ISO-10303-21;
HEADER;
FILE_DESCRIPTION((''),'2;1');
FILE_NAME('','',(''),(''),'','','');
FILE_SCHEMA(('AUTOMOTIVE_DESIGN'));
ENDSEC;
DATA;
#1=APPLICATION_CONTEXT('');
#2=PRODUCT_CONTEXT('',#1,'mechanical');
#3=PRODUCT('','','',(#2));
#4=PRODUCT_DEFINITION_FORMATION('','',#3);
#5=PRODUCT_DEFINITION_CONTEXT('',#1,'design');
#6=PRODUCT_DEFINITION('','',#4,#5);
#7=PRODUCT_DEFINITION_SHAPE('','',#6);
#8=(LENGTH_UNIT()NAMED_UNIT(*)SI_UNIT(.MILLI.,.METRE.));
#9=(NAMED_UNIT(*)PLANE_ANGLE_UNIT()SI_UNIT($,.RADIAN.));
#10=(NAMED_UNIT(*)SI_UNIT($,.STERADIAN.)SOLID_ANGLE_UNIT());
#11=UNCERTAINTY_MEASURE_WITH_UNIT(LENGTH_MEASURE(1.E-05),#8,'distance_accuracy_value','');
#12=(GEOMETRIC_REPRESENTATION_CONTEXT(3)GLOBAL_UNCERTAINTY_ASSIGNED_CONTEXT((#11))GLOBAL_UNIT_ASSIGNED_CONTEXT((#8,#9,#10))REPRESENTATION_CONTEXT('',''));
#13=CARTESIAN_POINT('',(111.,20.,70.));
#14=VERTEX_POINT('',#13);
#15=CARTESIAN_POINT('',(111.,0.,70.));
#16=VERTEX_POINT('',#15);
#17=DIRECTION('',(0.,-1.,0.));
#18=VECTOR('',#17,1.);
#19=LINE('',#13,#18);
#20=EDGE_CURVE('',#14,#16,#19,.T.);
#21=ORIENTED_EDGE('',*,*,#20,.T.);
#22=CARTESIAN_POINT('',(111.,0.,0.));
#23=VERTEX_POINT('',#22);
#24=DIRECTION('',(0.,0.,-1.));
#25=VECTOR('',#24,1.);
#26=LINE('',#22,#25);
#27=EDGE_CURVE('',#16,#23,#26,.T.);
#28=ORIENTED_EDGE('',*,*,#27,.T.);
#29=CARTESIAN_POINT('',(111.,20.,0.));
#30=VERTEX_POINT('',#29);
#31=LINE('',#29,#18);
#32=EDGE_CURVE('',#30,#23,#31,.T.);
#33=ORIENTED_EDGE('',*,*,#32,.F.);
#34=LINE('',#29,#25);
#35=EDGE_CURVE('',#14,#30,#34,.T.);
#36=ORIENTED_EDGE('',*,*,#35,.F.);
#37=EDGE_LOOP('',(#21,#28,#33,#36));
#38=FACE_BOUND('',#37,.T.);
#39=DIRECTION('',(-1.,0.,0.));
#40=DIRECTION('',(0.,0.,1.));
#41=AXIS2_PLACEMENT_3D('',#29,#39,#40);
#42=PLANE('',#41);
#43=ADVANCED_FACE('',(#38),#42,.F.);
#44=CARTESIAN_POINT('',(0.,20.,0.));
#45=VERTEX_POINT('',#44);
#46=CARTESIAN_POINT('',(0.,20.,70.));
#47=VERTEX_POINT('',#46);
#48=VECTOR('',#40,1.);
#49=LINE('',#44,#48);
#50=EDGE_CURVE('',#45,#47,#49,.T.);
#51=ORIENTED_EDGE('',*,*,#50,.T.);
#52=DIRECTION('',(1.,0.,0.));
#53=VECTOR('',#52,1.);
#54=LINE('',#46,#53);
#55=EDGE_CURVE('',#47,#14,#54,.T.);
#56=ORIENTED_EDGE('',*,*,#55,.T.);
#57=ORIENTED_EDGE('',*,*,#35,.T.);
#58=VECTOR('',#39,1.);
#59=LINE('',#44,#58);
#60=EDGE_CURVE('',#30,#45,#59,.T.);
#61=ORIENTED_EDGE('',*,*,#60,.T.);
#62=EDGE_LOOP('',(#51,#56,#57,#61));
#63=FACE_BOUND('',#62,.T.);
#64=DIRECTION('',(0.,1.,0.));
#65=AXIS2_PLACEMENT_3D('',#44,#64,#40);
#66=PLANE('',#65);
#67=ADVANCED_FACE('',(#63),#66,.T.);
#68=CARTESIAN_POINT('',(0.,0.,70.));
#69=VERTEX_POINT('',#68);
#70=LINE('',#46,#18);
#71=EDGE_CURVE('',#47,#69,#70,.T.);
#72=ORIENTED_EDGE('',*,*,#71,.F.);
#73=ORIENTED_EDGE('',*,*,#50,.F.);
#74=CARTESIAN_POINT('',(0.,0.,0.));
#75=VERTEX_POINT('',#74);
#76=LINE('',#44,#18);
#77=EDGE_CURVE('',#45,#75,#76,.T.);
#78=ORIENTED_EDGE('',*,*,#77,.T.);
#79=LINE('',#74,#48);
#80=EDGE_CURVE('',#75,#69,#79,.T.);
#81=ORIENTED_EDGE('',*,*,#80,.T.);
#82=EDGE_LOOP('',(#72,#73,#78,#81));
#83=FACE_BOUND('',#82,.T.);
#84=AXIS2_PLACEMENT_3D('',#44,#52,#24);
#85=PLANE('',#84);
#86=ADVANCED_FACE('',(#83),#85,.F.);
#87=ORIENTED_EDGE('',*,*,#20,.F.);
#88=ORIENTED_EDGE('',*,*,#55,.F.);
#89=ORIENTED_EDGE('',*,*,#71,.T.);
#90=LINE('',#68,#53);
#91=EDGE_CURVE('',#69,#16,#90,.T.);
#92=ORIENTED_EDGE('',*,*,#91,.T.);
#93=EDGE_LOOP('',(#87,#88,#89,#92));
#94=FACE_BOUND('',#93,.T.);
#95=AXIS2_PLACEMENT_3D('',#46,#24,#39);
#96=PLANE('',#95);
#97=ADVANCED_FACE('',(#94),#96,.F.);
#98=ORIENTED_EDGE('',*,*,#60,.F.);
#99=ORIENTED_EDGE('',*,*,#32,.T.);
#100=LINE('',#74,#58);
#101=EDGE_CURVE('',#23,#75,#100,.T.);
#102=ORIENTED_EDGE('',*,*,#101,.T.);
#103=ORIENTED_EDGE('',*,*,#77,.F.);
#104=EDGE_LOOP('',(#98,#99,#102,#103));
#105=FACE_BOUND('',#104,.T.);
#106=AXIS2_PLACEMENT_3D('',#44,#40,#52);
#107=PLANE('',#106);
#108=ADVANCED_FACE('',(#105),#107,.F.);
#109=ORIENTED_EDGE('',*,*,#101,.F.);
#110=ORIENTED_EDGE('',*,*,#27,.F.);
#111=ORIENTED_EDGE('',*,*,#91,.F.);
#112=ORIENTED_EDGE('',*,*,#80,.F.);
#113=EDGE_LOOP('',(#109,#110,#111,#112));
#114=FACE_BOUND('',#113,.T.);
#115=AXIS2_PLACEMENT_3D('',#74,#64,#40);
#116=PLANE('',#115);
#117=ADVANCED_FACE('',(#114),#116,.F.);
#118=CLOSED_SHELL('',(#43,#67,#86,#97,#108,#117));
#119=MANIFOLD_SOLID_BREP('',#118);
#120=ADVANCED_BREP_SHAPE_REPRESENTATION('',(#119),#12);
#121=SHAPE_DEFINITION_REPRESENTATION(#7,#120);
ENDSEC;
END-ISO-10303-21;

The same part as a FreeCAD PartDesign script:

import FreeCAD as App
import Part
import Sketcher

V = App.Vector
Q = App.Units.Quantity

doc = App.newDocument("Part")
body = doc.addObject("PartDesign::Body", "Body")

sketch1 = body.newObject("Sketcher::SketchObject", "Sketch")
sketch1.AttachmentSupport = (doc.getObject("XZ_Plane"), [""])
sketch1.MapMode = "FlatFace"
sketch1.addGeometry([
    Part.LineSegment(V(0, 0, 0), V(0, 70, 0)),
    Part.LineSegment(V(0, 70, 0), V(111, 70, 0)),
    Part.LineSegment(V(111, 70, 0), V(111, 0, 0)),
    Part.LineSegment(V(111, 0, 0), V(0, 0, 0)),
], False)
sketch1.addConstraint([
    Sketcher.Constraint("Coincident", 0, 2, 1, 1),
    Sketcher.Constraint("Coincident", 1, 2, 2, 1),
    Sketcher.Constraint("Coincident", 2, 2, 3, 1),
    Sketcher.Constraint("Coincident", 3, 2, 0, 1),
    Sketcher.Constraint("Vertical", 0),
    Sketcher.Constraint("Horizontal", 1),
    Sketcher.Constraint("Vertical", 2),
    Sketcher.Constraint("Horizontal", 3),
    Sketcher.Constraint("Coincident", 3, 2, -1, 1),
    Sketcher.Constraint("DistanceX", 1, 1, 1, 2, Q("111 mm")),
    Sketcher.Constraint("DistanceY", 0, 1, 0, 2, Q("70 mm")),
])
pad1 = body.newObject("PartDesign::Pad", "Pad")
pad1.Profile = sketch1
pad1.Length = 20
pad1.Reversed = True

doc.recompute()
